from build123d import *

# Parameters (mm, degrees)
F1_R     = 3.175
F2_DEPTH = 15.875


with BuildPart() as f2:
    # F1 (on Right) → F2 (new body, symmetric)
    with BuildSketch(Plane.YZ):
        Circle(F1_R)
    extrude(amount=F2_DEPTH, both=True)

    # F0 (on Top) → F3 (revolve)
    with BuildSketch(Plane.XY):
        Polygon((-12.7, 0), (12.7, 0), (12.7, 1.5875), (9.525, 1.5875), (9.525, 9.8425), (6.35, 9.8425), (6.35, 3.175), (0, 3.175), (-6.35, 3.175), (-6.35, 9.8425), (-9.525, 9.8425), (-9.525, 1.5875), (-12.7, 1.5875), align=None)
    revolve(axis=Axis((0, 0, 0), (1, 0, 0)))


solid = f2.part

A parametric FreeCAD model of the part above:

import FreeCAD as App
import Part
import Sketcher

V = App.Vector
Q = App.Units.Quantity

doc = App.newDocument("Part")
body = doc.addObject("PartDesign::Body", "Body")

sketch1 = body.newObject("Sketcher::SketchObject", "Sketch")
sketch1.AttachmentSupport = (doc.getObject("YZ_Plane"), [""])
sketch1.MapMode = "FlatFace"
sketch1.addGeometry(Part.Circle(V(0, 0, 0), V(0, 0, 1), 3.2), False)
sketch1.addConstraint(Sketcher.Constraint("Coincident", 0, 3, -1, 1))
sketch1.addConstraint(Sketcher.Constraint("Diameter", 0, Q("0.25 in")))
pad1 = body.newObject("PartDesign::Pad", "Pad")
pad1.Profile = sketch1
pad1.Length = Q("1.25 in")
pad1.Midplane = True

sketch2 = body.newObject("Sketcher::SketchObject", "Sketch001")
sketch2.AttachmentSupport = (doc.getObject("XY_Plane"), [""])
sketch2.MapMode = "FlatFace"
sketch2.addGeometry(Part.LineSegment(V(-12.7, 0, 0), V(12.7, 0, 0)), False)
sketch2.addGeometry(Part.LineSegment(V(12.7, 0, 0), V(12.7, 1.6, 0)), False)
sketch2.addGeometry(Part.LineSegment(V(12.7, 1.6, 0), V(9.5, 1.6, 0)), False)
sketch2.addGeometry(Part.LineSegment(V(9.5, 1.6, 0), V(9.5, 9.8, 0)), False)
sketch2.addGeometry(Part.LineSegment(V(9.5, 9.8, 0), V(6.3, 9.8, 0)), False)
sketch2.addGeometry(Part.LineSegment(V(6.3, 9.8, 0), V(6.3, 3.2, 0)), False)
sketch2.addGeometry(Part.LineSegment(V(6.3, 3.2, 0), V(-6.3, 3.2, 0)), False)
sketch2.addGeometry(Part.LineSegment(V(-6.3, 3.2, 0), V(-6.3, 9.8, 0)), False)
sketch2.addGeometry(Part.LineSegment(V(-6.3, 9.8, 0), V(-9.5, 9.8, 0)), False)
sketch2.addGeometry(Part.LineSegment(V(-9.5, 9.8, 0), V(-9.5, 1.6, 0)), False)
sketch2.addGeometry(Part.LineSegment(V(-9.5, 1.6, 0), V(-12.7, 1.6, 0)), False)
sketch2.addGeometry(Part.LineSegment(V(-12.7, 1.6, 0), V(-12.7, 0, 0)), False)
sketch2.addConstraint(Sketcher.Constraint("Coincident", 0, 2, 1, 1))
sketch2.addConstraint(Sketcher.Constraint("Coincident", 1, 2, 2, 1))
sketch2.addConstraint(Sketcher.Constraint("Coincident", 2, 2, 3, 1))
sketch2.addConstraint(Sketcher.Constraint("Coincident", 3, 2, 4, 1))
sketch2.addConstraint(Sketcher.Constraint("Coincident", 4, 2, 5, 1))
sketch2.addConstraint(Sketcher.Constraint("Coincident", 5, 2, 6, 1))
sketch2.addConstraint(Sketcher.Constraint("Coincident", 6, 2, 7, 1))
sketch2.addConstraint(Sketcher.Constraint("Coincident", 7, 2, 8, 1))
sketch2.addConstraint(Sketcher.Constraint("Coincident", 8, 2, 9, 1))
sketch2.addConstraint(Sketcher.Constraint("Coincident", 9, 2, 10, 1))
sketch2.addConstraint(Sketcher.Constraint("Coincident", 10, 2, 11, 1))
sketch2.addConstraint(Sketcher.Constraint("Coincident", 11, 2, 0, 1))
sketch2.addConstraint(Sketcher.Constraint("Horizontal", 0))
sketch2.addConstraint(Sketcher.Constraint("Vertical", 1))
sketch2.addConstraint(Sketcher.Constraint("Horizontal", 2))
sketch2.addConstraint(Sketcher.Constraint("Vertical", 3))
sketch2.addConstraint(Sketcher.Constraint("Horizontal", 4))
sketch2.addConstraint(Sketcher.Constraint("Vertical", 5))
sketch2.addConstraint(Sketcher.Constraint("Horizontal", 6))
sketch2.addConstraint(Sketcher.Constraint("Vertical", 7))
sketch2.addConstraint(Sketcher.Constraint("Horizontal", 8))
sketch2.addConstraint(Sketcher.Constraint("Vertical", 9))
sketch2.addConstraint(Sketcher.Constraint("Horizontal", 10))
sketch2.addConstraint(Sketcher.Constraint("Vertical", 11))
sketch2.addConstraint(Sketcher.Constraint("Symmetric", 0, 2, 11, 2, -1, 1))
sketch2.addConstraint(Sketcher.Constraint("Symmetric", 4, 2, 7, 2, -2))
sketch2.addConstraint(Sketcher.Constraint("Symmetric", 2, 2, 9, 2, -2))
sketch2.addConstraint(Sketcher.Constraint("Equal", 2, 4))
sketch2.addConstraint(Sketcher.Constraint("DistanceX", 0, 1, 0, 2, Q("1 in")))
sketch2.addConstraint(Sketcher.Constraint("DistanceX", 6, 2, 6, 1, Q("0.5 in")))
sketch2.addConstraint(Sketcher.Constraint("DistanceY", 1, 1, 1, 2, Q("0.0625 in")))
sketch2.addConstraint(Sketcher.Constraint("DistanceY", 3, 1, 3, 2, Q("0.325 in")))
sketch2.addConstraint(Sketcher.Constraint("DistanceY", 5, 2, 5, 1, Q("0.2625 in")))
revolution = body.newObject("PartDesign::Revolution", "Revolution")
revolution.Profile = sketch2
revolution.ReferenceAxis = (sketch2, ["H_Axis"])
revolution.Angle = 360

doc.recompute()
